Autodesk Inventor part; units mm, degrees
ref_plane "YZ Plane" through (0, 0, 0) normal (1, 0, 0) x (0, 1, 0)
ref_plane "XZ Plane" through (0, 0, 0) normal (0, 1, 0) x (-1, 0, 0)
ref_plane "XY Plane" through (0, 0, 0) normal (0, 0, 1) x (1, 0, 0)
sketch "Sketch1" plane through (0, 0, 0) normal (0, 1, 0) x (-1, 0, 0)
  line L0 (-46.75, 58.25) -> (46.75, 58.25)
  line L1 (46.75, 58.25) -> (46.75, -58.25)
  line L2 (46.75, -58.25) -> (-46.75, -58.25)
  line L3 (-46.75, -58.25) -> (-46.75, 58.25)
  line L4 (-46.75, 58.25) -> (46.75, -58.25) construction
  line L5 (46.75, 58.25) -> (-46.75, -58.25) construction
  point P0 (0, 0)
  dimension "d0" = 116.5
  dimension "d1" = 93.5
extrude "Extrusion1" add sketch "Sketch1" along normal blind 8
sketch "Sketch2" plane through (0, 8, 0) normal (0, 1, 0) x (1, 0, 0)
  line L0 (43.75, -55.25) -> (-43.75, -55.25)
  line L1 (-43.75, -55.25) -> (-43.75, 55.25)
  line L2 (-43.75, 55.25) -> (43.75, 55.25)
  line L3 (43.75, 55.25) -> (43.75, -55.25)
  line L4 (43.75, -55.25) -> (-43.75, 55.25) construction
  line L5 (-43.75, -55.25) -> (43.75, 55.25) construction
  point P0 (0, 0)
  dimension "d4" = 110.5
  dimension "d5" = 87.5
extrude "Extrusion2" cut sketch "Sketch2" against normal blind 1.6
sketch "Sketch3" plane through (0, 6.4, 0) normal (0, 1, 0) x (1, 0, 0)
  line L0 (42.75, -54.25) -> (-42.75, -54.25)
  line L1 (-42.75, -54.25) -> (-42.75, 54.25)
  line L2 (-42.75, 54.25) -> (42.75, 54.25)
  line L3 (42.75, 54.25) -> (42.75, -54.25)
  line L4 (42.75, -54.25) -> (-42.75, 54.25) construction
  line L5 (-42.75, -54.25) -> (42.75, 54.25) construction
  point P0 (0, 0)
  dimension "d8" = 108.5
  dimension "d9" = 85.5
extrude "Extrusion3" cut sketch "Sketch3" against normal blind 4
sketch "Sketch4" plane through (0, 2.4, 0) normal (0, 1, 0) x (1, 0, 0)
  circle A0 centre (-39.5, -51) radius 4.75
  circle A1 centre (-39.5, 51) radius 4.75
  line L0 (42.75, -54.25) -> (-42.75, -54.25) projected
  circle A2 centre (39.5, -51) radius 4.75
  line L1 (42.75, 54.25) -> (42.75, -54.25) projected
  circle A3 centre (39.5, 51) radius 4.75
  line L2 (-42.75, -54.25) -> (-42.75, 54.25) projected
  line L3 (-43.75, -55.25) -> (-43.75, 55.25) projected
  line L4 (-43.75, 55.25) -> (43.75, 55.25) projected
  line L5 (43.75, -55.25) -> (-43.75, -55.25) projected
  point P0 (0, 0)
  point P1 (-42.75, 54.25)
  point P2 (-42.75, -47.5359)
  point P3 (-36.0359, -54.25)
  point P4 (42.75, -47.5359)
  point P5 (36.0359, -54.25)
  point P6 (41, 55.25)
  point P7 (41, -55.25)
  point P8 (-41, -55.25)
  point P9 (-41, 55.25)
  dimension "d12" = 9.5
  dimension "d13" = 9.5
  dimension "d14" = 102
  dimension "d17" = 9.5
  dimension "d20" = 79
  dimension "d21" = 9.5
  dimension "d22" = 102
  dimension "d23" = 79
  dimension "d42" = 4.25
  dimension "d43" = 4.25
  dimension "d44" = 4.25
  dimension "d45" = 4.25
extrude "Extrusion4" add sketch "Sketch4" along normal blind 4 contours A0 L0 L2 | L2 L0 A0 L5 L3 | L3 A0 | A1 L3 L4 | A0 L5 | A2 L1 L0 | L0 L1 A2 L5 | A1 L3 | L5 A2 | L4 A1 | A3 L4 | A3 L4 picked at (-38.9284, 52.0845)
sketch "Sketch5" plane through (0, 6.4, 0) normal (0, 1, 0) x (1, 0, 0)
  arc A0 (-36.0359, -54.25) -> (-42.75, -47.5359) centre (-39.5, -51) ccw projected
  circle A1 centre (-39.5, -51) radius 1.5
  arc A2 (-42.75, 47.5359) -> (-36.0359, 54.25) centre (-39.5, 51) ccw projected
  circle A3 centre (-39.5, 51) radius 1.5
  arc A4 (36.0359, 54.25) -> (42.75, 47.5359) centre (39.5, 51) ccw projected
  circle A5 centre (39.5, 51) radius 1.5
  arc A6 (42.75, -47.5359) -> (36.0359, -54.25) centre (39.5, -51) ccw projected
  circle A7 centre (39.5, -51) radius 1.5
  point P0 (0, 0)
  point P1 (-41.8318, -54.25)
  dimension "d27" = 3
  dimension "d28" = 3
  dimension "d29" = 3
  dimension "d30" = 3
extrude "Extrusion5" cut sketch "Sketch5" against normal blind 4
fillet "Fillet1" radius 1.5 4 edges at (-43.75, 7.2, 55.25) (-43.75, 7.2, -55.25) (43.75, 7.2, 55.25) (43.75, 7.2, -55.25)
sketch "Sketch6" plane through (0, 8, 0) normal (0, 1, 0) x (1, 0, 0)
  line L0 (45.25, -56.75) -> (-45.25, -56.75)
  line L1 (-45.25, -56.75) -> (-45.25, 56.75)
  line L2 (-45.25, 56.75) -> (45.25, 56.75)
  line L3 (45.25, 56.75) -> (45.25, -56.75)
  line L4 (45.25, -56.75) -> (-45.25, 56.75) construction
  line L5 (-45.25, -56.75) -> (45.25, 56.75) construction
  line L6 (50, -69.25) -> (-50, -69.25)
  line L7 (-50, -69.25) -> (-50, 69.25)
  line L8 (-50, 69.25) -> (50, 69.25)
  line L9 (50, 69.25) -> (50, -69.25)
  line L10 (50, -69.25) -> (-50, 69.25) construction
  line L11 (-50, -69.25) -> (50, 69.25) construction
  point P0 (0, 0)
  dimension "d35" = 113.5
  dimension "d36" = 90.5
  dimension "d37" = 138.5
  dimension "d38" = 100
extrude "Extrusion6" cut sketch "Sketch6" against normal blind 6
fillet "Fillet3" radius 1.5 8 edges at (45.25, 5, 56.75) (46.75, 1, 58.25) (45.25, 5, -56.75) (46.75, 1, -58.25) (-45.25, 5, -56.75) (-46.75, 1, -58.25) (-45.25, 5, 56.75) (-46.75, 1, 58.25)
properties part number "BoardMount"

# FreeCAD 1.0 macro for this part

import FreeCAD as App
import Part
import Sketcher
from FreeCAD import Vector


def edges_at(feature, points):
    """Names of the edges that pass closest to the given points."""
    edges = feature.Shape.Edges
    near = lambda p: min(range(len(edges)), key=lambda i: edges[i].distToShape(Part.Vertex(*p))[0])
    return sorted({f"Edge{near(p) + 1}" for p in points})


def add_polygon(sketch, points):
    """Adds a closed chain of lines whose ends are joined by coincident constraints."""
    first, n = sketch.GeometryCount, len(points)
    for a, b in zip(points, points[1:] + points[:1]):
        sketch.addGeometry(Part.LineSegment(App.Vector(*a, 0), App.Vector(*b, 0)), False)
    for i in range(n):
        sketch.addConstraint(Sketcher.Constraint("Coincident", first + i, 2, first + (i + 1) % n, 1))

doc = App.newDocument("Part")
body = doc.addObject("PartDesign::Body", "Body")

# Sketch on XZ plane
sketch1 = body.newObject("Sketcher::SketchObject", "Sketch")
sketch1.AttachmentSupport = (doc.getObject("XZ_Plane"), [""])
sketch1.MapMode = "FlatFace"
add_polygon(sketch1, [(-47, 58), (47, 58), (47, -58), (-47, -58)])  # lines 0-3
sketch1.addConstraint(Sketcher.Constraint("Horizontal", 0))
sketch1.addConstraint(Sketcher.Constraint("Vertical", 1))
sketch1.addConstraint(Sketcher.Constraint("Horizontal", 2))
sketch1.addConstraint(Sketcher.Constraint("Vertical", 3))
sketch1.addConstraint(Sketcher.Constraint("Symmetric", 0, 2, 2, 2, -1, 1))
sketch1.addConstraint(Sketcher.Constraint("DistanceX", 0, 1, 0, 2, 93.5))
sketch1.addConstraint(Sketcher.Constraint("DistanceY", 1, 2, 1, 1, 116.5))
pad1 = body.newObject("PartDesign::Pad", "Pad")
pad1.Profile = sketch1
pad1.Length = 8
pad1.Reversed = True

# Sketch on XZ plane
sketch2 = body.newObject("Sketcher::SketchObject", "Sketch001")
sketch2.AttachmentSupport = (doc.getObject("XZ_Plane"), [""])
sketch2.MapMode = "FlatFace"
sketch2.AttachmentOffset = App.Placement(Vector(0, 0, -8), App.Rotation())
add_polygon(sketch2, [(-44, 55), (44, 55), (44, -55), (-44, -55)])  # lines 0-3
sketch2.addConstraint(Sketcher.Constraint("Horizontal", 0))
sketch2.addConstraint(Sketcher.Constraint("Vertical", 1))
sketch2.addConstraint(Sketcher.Constraint("Horizontal", 2))
sketch2.addConstraint(Sketcher.Constraint("Vertical", 3))
sketch2.addConstraint(Sketcher.Constraint("Symmetric", 0, 2, 2, 2, -1, 1))
sketch2.addConstraint(Sketcher.Constraint("DistanceX", 0, 1, 0, 2, 87.5))
sketch2.addConstraint(Sketcher.Constraint("DistanceY", 1, 2, 1, 1, 110.5))
pocket1 = body.newObject("PartDesign::Pocket", "Pocket")
pocket1.Profile = sketch2
pocket1.Length = 1.6
pocket1.Reversed = True

# Sketch on XZ plane
sketch3 = body.newObject("Sketcher::SketchObject", "Sketch002")
sketch3.AttachmentSupport = (doc.getObject("XZ_Plane"), [""])
sketch3.MapMode = "FlatFace"
sketch3.AttachmentOffset = App.Placement(Vector(0, 0, -6.4), App.Rotation())
add_polygon(sketch3, [(-43, 54), (43, 54), (43, -54), (-43, -54)])  # lines 0-3
sketch3.addConstraint(Sketcher.Constraint("Horizontal", 0))
sketch3.addConstraint(Sketcher.Constraint("Vertical", 1))
sketch3.addConstraint(Sketcher.Constraint("Horizontal", 2))
sketch3.addConstraint(Sketcher.Constraint("Vertical", 3))
sketch3.addConstraint(Sketcher.Constraint("Symmetric", 0, 2, 2, 2, -1, 1))
sketch3.addConstraint(Sketcher.Constraint("DistanceX", 0, 1, 0, 2, 85.5))
sketch3.addConstraint(Sketcher.Constraint("DistanceY", 1, 2, 1, 1, 108.5))
pocket2 = body.newObject("PartDesign::Pocket", "Pocket001")
pocket2.Profile = sketch3
pocket2.Length = 4
pocket2.Reversed = True

# Sketch on XZ plane
sketch4 = body.newObject("Sketcher::SketchObject", "Sketch003")
sketch4.AttachmentSupport = (doc.getObject("XZ_Plane"), [""])
sketch4.MapMode = "FlatFace"
sketch4.AttachmentOffset = App.Placement(Vector(0, 0, -2.4), App.Rotation())
sketch4.addGeometry(Part.Circle(Vector(-39.5, 51, 0), Vector(0, 0, 1), 4.8), False)
sketch4.addGeometry(Part.Circle(Vector(-39.5, -51, 0), Vector(0, 0, 1), 4.8), False)
sketch4.addGeometry(Part.Circle(Vector(39.5, 51, 0), Vector(0, 0, 1), 4.8), False)
sketch4.addGeometry(Part.Circle(Vector(39.5, -51, 0), Vector(0, 0, 1), 4.8), False)
sketch4.addConstraint(Sketcher.Constraint("Equal", 0, 1))
sketch4.addConstraint(Sketcher.Constraint("Equal", 1, 2))
sketch4.addConstraint(Sketcher.Constraint("Equal", 2, 3))
sketch4.addConstraint(Sketcher.Constraint("Symmetric", 1, 3, 2, 3, -1, 1))
sketch4.addConstraint(Sketcher.Constraint("Symmetric", 0, 3, 3, 3, -1, 1))
sketch4.addConstraint(Sketcher.Constraint("Symmetric", 0, 3, 2, 3, -2))
sketch4.addConstraint(Sketcher.Constraint("Diameter", 0, 9.5))
sketch4.addConstraint(Sketcher.Constraint("DistanceY", 1, 3, 0, 3, 102.0))
sketch4.addConstraint(Sketcher.Constraint("DistanceX", 0, 3, 2, 3, 79.0))
pad2 = body.newObject("PartDesign::Pad", "Pad001")
pad2.Profile = sketch4
pad2.Length = 4
pad2.Reversed = True

# Sketch on XZ plane
sketch5 = body.newObject("Sketcher::SketchObject", "Sketch004")
sketch5.AttachmentSupport = (doc.getObject("XZ_Plane"), [""])
sketch5.MapMode = "FlatFace"
sketch5.AttachmentOffset = App.Placement(Vector(0, 0, -6.4), App.Rotation())
sketch5.addGeometry(Part.Circle(Vector(-39.5, 51, 0), Vector(0, 0, 1), 1.5), False)
sketch5.addGeometry(Part.Circle(Vector(-39.5, -51, 0), Vector(0, 0, 1), 1.5), False)
sketch5.addGeometry(Part.Circle(Vector(39.5, -51, 0), Vector(0, 0, 1), 1.5), False)
sketch5.addGeometry(Part.Circle(Vector(39.5, 51, 0), Vector(0, 0, 1), 1.5), False)
sketch5.addConstraint(Sketcher.Constraint("Equal", 0, 1))
sketch5.addConstraint(Sketcher.Constraint("Equal", 1, 2))
sketch5.addConstraint(Sketcher.Constraint("Equal", 2, 3))
sketch5.addConstraint(Sketcher.Constraint("Symmetric", 0, 3, 2, 3, -1, 1))
sketch5.addConstraint(Sketcher.Constraint("Symmetric", 1, 3, 3, 3, -1, 1))
sketch5.addConstraint(Sketcher.Constraint("Symmetric", 1, 3, 2, 3, -2))
sketch5.addConstraint(Sketcher.Constraint("Diameter", 0, 3.0))
sketch5.addConstraint(Sketcher.Constraint("DistanceY", -1, 1, 0, 3, 51.0))
sketch5.addConstraint(Sketcher.Constraint("DistanceX", 1, 3, 2, 3, 79.0))
pocket3 = body.newObject("PartDesign::Pocket", "Pocket002")
pocket3.Profile = sketch5
pocket3.Length = 4
pocket3.Reversed = True
doc.recompute()

fillet = body.newObject("PartDesign::Fillet", "Fillet")
fillet.Base = (pocket3, edges_at(pocket3, [
    (-43.75, 7.2, 55.25),
    (-43.75, 7.2, -55.25),
    (43.75, 7.2, 55.25),
    (43.75, 7.2, -55.25),
]))
fillet.Radius = 1.5

# Sketch on XZ plane
sketch6 = body.newObject("Sketcher::SketchObject", "Sketch005")
sketch6.AttachmentSupport = (doc.getObject("XZ_Plane"), [""])
sketch6.MapMode = "FlatFace"
sketch6.AttachmentOffset = App.Placement(Vector(0, 0, -8), App.Rotation())
add_polygon(sketch6, [(-50, 69), (50, 69), (50, -69), (-50, -69)])  # lines 0-3
add_polygon(sketch6, [(45, -57), (45, 57), (-45, 57), (-45, -57)])  # lines 4-7
sketch6.addConstraint(Sketcher.Constraint("Horizontal", 0))
sketch6.addConstraint(Sketcher.Constraint("Vertical", 1))
sketch6.addConstraint(Sketcher.Constraint("Horizontal", 2))
sketch6.addConstraint(Sketcher.Constraint("Vertical", 3))
sketch6.addConstraint(Sketcher.Constraint("Vertical", 4))
sketch6.addConstraint(Sketcher.Constraint("Horizontal", 5))
sketch6.addConstraint(Sketcher.Constraint("Vertical", 6))
sketch6.addConstraint(Sketcher.Constraint("Horizontal", 7))
sketch6.addConstraint(Sketcher.Constraint("Symmetric", 0, 2, 2, 2, -1, 1))
sketch6.addConstraint(Sketcher.Constraint("Symmetric", 4, 2, 6, 2, -1, 1))
sketch6.addConstraint(Sketcher.Constraint("DistanceX", 0, 1, 0, 2, 100.0))
sketch6.addConstraint(Sketcher.Constraint("DistanceX", 5, 2, 5, 1, 90.5))
sketch6.addConstraint(Sketcher.Constraint("DistanceY", 1, 2, 1, 1, 138.5))
sketch6.addConstraint(Sketcher.Constraint("DistanceY", 4, 1, 4, 2, 113.5))
pocket4 = body.newObject("PartDesign::Pocket", "Pocket003")
pocket4.Profile = sketch6
pocket4.Length = 6
pocket4.Reversed = True
doc.recompute()

fillet2 = body.newObject("PartDesign::Fillet", "Fillet001")
fillet2.Base = (pocket4, edges_at(pocket4, [
    (45.25, 5, 56.75),
    (46.75, 1, 58.25),
    (45.25, 5, -56.75),
    (46.75, 1, -58.25),
    (-45.25, 5, -56.75),
    (-46.75, 1, -58.25),
    (-45.25, 5, 56.75),
    (-46.75, 1, 58.25),
]))
fillet2.Radius = 1.5

doc.recompute()
